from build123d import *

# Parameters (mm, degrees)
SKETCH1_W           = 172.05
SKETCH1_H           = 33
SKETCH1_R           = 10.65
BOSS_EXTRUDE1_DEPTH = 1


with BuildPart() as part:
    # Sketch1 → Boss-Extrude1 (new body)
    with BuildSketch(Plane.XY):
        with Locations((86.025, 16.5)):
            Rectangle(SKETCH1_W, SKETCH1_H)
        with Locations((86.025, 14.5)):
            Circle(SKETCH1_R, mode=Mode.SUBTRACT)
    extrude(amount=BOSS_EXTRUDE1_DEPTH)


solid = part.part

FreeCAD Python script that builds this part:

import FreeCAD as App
import Part
import Sketcher
from FreeCAD import Vector

doc = App.newDocument("Part")
body = doc.addObject("PartDesign::Body", "Body")

sketch1 = body.newObject("Sketcher::SketchObject", "Sketch")
sketch1.AttachmentSupport = (doc.getObject("XY_Plane"), [""])
sketch1.MapMode = "FlatFace"
sketch1.addGeometry([
    Part.LineSegment(Vector(0, 33, 0), Vector(0, 0, 0)),
    Part.LineSegment(Vector(0, 0, 0), Vector(172, 0, 0)),
    Part.LineSegment(Vector(172, 0, 0), Vector(172, 33, 0)),
    Part.LineSegment(Vector(172, 33, 0), Vector(0, 33, 0)),
    Part.Circle(Vector(86, 14, 0), Vector(0, 0, 1), 11),
], False)
sketch1.addConstraint([
    Sketcher.Constraint("Coincident", 0, 2, 1, 1),
    Sketcher.Constraint("Coincident", 1, 2, 2, 1),
    Sketcher.Constraint("Coincident", 2, 2, 3, 1),
    Sketcher.Constraint("Coincident", 3, 2, 0, 1),
    Sketcher.Constraint("Vertical", 0),
    Sketcher.Constraint("Horizontal", 1),
    Sketcher.Constraint("Vertical", 2),
    Sketcher.Constraint("Horizontal", 3),
    Sketcher.Constraint("Coincident", 0, 2, -1, 1),
    Sketcher.Constraint("Diameter", 4, 21.3),
    Sketcher.Constraint("DistanceY", 0, 2, 0, 1, 33.0),
    Sketcher.Constraint("DistanceX", 1, 1, 1, 2, 172.05),
    Sketcher.Constraint("DistanceY", -1, 1, 4, 3, 14.5),
    Sketcher.Constraint("DistanceX", -1, 1, 4, 3, 86.025),
])
pad1 = body.newObject("PartDesign::Pad", "Pad")
pad1.Profile = sketch1
pad1.Length = 1

doc.recompute()
